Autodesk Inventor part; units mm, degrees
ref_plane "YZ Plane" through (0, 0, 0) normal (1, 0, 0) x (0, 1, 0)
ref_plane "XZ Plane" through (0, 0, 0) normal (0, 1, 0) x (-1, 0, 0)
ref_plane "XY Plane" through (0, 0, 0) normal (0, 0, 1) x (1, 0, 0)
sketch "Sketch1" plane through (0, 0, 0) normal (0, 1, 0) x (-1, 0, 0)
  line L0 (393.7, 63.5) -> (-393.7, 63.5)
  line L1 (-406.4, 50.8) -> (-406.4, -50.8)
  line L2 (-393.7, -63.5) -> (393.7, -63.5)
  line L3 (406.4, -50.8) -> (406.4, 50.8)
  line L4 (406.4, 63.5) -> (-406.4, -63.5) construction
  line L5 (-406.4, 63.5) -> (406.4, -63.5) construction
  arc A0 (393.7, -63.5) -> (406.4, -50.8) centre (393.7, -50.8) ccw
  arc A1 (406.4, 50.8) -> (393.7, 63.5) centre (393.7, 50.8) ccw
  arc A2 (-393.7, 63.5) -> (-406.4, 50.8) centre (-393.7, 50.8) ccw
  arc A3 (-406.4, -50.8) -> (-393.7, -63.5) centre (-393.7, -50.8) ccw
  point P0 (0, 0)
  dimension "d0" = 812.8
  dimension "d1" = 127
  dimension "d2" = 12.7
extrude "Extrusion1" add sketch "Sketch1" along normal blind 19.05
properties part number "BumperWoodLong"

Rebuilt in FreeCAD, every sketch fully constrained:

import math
import FreeCAD as App
import Part
import Sketcher

V = App.Vector
Q = App.Units.Quantity

doc = App.newDocument("Part")
body = doc.addObject("PartDesign::Body", "Body")

sketch1 = body.newObject("Sketcher::SketchObject", "Sketch")
sketch1.AttachmentSupport = (doc.getObject("XZ_Plane"), [""])
sketch1.MapMode = "FlatFace"
sketch1.addGeometry([
    Part.ArcOfCircle(Part.Circle(V(-394, 51, 0), V(0, 0, 1), 13), math.radians(90), math.radians(180)),
    Part.LineSegment(V(-394, 64, 0), V(394, 64, 0)),
    Part.ArcOfCircle(Part.Circle(V(394, 51, 0), V(0, 0, 1), 13), math.radians(0), math.radians(90)),
    Part.LineSegment(V(406, 51, 0), V(406, -51, 0)),
    Part.ArcOfCircle(Part.Circle(V(394, -51, 0), V(0, 0, 1), 13), math.radians(-90), math.radians(0)),
    Part.LineSegment(V(394, -64, 0), V(-394, -64, 0)),
    Part.ArcOfCircle(Part.Circle(V(-394, -51, 0), V(0, 0, 1), 13), math.radians(180), math.radians(270)),
    Part.LineSegment(V(-406, -51, 0), V(-406, 51, 0)),
], False)
sketch1.addConstraint([
    Sketcher.Constraint("Tangent", 0, 1, 1, 1),
    Sketcher.Constraint("Tangent", 1, 2, 2, 2),
    Sketcher.Constraint("Tangent", 2, 1, 3, 1),
    Sketcher.Constraint("Tangent", 3, 2, 4, 2),
    Sketcher.Constraint("Tangent", 4, 1, 5, 1),
    Sketcher.Constraint("Tangent", 5, 2, 6, 2),
    Sketcher.Constraint("Tangent", 6, 1, 7, 1),
    Sketcher.Constraint("Tangent", 7, 2, 0, 2),
    Sketcher.Constraint("Horizontal", 1),
    Sketcher.Constraint("Vertical", 3),
    Sketcher.Constraint("Horizontal", 5),
    Sketcher.Constraint("Vertical", 7),
    Sketcher.Constraint("Equal", 0, 2),
    Sketcher.Constraint("Equal", 2, 4),
    Sketcher.Constraint("Equal", 4, 6),
    Sketcher.Constraint("Symmetric", 0, 3, 4, 3, -1, 1),
    Sketcher.Constraint("Radius", 0, Q("0.5 in")),
    Sketcher.Constraint("DistanceY", 4, 1, 1, 2, Q("5 in")),
    Sketcher.Constraint("DistanceX", 1, 1, 1, 2, Q("31 in")),
])
pad1 = body.newObject("PartDesign::Pad", "Pad")
pad1.Profile = sketch1
pad1.Length = Q("0.75 in")
pad1.Reversed = True

doc.recompute()
